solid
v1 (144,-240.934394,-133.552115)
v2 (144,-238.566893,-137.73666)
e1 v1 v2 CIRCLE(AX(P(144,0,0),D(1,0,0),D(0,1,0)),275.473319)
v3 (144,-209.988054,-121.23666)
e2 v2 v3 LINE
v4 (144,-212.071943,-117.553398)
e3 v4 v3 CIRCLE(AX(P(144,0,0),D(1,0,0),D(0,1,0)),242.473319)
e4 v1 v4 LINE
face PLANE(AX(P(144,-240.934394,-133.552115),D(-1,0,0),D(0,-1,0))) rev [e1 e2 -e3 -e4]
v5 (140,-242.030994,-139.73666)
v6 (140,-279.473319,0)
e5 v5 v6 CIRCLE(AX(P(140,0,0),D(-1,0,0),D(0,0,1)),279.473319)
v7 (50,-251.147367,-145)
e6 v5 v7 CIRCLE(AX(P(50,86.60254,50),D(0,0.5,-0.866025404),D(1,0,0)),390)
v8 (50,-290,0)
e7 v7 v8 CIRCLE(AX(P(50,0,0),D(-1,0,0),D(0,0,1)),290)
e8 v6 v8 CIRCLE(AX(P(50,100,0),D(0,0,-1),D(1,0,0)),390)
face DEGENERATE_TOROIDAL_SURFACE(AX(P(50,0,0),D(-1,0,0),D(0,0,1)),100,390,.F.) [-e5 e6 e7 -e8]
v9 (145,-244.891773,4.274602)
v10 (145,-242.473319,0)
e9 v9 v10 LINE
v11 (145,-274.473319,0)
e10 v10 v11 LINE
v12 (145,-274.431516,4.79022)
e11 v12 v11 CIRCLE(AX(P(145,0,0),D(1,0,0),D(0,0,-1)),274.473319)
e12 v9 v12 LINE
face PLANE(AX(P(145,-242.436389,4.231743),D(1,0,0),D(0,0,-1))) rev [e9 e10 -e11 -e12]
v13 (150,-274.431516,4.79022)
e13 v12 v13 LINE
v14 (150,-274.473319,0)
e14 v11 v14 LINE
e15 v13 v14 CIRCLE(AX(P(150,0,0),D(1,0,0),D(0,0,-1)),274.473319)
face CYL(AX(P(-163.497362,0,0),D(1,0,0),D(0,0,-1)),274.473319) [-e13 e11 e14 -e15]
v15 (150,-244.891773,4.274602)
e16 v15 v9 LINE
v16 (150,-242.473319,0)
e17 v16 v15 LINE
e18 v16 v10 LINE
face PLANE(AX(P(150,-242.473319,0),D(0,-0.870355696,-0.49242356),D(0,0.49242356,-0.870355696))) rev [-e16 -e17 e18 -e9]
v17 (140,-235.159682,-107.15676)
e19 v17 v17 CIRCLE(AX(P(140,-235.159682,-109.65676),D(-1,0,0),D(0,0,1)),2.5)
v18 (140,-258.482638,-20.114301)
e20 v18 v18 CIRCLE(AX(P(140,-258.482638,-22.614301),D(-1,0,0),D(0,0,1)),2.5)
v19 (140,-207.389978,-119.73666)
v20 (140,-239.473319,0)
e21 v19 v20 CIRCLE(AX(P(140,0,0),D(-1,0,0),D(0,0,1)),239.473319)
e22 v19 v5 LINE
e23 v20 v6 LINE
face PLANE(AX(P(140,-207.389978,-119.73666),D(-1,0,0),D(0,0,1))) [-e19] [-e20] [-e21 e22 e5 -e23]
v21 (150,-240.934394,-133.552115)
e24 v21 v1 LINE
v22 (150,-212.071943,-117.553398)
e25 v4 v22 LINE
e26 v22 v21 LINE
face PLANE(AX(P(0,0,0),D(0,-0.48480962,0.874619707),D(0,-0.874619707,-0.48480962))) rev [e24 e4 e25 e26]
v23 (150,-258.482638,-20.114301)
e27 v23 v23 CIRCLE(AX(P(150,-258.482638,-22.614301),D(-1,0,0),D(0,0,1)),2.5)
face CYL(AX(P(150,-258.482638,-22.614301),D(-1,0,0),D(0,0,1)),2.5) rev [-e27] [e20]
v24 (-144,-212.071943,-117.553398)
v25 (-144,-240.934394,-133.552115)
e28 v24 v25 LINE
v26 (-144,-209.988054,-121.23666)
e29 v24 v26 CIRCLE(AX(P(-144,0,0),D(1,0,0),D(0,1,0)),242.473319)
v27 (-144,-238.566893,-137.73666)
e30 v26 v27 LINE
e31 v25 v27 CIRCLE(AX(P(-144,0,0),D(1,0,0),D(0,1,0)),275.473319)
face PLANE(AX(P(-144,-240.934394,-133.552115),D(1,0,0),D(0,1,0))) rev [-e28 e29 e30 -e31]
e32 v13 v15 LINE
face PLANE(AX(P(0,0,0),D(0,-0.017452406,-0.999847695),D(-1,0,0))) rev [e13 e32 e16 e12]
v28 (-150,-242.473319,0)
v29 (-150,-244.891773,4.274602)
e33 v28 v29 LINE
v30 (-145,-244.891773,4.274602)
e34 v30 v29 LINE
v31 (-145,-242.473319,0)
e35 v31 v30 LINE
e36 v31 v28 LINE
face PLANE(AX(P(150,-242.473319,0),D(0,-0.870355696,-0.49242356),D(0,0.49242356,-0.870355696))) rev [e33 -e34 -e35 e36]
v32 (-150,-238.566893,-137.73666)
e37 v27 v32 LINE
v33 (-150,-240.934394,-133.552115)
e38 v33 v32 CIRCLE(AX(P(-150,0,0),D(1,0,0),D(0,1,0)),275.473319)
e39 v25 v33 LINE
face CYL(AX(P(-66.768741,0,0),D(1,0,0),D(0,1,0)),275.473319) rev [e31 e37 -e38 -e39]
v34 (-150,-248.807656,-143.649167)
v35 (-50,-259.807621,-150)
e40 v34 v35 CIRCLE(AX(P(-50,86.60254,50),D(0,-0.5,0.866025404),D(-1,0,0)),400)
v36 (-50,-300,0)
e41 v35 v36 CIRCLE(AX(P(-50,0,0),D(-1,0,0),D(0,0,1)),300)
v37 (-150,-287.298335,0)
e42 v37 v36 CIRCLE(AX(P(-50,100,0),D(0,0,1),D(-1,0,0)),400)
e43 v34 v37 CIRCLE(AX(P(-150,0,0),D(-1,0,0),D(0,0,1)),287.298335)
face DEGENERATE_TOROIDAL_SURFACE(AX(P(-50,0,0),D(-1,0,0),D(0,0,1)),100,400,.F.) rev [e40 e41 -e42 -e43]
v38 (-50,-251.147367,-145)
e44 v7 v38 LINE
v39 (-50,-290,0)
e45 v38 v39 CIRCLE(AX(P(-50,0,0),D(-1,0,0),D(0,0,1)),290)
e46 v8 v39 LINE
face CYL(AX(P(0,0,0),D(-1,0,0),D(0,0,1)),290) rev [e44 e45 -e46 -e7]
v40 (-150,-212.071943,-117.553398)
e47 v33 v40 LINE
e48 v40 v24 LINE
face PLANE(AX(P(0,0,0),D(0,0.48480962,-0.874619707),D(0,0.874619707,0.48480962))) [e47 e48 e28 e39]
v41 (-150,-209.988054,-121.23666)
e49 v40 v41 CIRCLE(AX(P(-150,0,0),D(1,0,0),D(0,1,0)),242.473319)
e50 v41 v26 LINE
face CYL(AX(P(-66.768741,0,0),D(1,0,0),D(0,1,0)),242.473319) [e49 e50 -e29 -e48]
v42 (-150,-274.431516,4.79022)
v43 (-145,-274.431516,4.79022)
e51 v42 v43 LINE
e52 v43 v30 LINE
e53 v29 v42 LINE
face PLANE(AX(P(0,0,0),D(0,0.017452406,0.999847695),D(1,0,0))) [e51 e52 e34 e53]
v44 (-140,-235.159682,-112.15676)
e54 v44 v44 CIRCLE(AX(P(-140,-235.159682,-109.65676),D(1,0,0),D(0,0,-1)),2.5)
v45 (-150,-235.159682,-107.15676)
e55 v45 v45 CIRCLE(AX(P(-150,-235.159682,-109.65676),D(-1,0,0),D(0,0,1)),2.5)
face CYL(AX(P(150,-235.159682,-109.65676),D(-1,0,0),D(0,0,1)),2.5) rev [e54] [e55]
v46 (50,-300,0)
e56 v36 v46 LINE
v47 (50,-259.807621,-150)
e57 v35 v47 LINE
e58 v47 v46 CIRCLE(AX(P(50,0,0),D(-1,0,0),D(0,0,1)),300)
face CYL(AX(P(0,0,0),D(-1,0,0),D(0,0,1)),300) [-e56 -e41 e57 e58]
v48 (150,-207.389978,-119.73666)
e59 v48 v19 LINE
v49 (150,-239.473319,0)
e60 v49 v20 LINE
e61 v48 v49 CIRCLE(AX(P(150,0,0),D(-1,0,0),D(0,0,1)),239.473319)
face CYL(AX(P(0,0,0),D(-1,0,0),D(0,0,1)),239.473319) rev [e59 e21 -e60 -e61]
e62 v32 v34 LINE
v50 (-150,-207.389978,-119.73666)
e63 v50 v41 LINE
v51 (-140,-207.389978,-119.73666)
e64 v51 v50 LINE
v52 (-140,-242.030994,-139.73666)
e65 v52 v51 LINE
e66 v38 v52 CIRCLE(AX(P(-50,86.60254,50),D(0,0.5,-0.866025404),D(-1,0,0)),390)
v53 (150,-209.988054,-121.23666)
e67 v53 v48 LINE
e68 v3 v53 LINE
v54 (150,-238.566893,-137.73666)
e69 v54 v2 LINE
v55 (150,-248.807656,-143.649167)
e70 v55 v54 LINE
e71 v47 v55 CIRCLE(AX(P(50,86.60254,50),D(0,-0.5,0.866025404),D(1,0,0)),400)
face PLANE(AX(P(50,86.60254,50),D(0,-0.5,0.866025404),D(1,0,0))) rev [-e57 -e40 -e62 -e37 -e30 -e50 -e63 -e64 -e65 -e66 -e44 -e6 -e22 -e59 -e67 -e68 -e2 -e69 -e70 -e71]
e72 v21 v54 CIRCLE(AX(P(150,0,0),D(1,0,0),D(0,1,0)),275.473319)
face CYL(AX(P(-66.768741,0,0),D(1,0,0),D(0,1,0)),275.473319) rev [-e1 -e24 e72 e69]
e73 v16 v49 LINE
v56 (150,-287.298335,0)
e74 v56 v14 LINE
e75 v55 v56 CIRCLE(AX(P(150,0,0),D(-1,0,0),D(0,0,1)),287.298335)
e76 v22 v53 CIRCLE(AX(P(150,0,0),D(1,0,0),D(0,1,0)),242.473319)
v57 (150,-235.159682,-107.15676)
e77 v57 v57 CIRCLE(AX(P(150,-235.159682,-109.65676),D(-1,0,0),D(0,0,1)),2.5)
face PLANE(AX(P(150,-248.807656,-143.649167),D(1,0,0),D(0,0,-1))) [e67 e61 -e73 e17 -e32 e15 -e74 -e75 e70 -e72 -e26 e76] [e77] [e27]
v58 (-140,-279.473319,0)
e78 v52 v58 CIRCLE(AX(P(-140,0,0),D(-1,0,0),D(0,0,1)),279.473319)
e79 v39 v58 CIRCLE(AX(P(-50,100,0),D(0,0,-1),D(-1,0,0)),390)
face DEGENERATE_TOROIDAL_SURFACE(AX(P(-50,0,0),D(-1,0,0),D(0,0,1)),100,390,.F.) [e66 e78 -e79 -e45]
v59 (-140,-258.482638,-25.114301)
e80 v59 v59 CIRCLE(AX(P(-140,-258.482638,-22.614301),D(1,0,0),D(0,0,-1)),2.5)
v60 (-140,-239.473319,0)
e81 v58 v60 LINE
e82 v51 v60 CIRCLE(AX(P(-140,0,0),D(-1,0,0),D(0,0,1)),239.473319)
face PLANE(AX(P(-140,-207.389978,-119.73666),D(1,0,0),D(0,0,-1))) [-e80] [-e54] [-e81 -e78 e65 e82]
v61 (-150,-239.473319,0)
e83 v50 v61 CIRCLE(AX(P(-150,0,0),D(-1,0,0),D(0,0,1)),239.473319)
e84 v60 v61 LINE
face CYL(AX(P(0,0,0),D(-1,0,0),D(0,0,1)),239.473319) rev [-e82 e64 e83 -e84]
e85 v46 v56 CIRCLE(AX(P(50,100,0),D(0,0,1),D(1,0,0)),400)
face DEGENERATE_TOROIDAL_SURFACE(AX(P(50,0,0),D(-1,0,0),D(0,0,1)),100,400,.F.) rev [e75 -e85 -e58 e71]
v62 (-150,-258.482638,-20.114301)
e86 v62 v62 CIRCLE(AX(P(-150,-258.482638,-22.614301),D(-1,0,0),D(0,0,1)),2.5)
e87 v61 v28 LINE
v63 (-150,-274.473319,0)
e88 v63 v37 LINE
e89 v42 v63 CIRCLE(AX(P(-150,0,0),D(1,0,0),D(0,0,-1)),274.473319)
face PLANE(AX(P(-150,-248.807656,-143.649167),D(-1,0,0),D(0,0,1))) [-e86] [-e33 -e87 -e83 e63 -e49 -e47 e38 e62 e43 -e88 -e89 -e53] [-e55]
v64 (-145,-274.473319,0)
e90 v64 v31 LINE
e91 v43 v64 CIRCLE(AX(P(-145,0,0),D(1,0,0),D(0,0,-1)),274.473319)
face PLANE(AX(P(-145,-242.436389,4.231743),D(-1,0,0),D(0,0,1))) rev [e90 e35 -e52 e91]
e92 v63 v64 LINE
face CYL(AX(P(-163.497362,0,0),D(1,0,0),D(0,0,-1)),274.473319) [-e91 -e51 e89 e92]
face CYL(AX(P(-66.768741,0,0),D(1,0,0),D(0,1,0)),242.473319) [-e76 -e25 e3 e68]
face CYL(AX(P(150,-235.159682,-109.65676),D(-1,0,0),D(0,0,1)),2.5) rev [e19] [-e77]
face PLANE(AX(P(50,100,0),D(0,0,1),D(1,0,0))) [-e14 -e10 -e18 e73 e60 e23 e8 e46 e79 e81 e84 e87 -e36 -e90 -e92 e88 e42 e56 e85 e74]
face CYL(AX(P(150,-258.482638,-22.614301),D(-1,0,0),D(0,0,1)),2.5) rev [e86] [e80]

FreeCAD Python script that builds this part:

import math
import FreeCAD as App
import Part
import Sketcher
from FreeCAD import Vector
Q = App.Units.Quantity


def add_polygon(sketch, points):
    """Adds a closed chain of lines whose ends are joined by coincident constraints."""
    first, n = sketch.GeometryCount, len(points)
    for a, b in zip(points, points[1:] + points[:1]):
        sketch.addGeometry(Part.LineSegment(App.Vector(*a, 0), App.Vector(*b, 0)), False)
    for i in range(n):
        sketch.addConstraint(Sketcher.Constraint("Coincident", first + i, 2, first + (i + 1) % n, 1))

doc = App.newDocument("Part")
body = doc.addObject("PartDesign::Body", "Body")

# Sketch on XY plane
sketch1 = doc.addObject("Sketcher::SketchObject", "Sketch")
body.addObject(sketch1)
sketch1.AttachmentSupport = (doc.XY_Plane, [""])
sketch1.MapMode = "FlatFace"
sketch1.addGeometry([
    Part.LineSegment(Vector(-50, -300, 0), Vector(50, -300, 0)),  # 0
    Part.ArcOfCircle(Part.Circle(Vector(50, 100, 0), Vector(0, 0, 1), 400), math.radians(-90), math.radians(-75.52)),  # 1
    Part.LineSegment(Vector(150, -287, 0), Vector(150, -239, 0)),  # 2
    Part.LineSegment(Vector(150, -239, 0), Vector(140, -239, 0)),  # 3
    Part.LineSegment(Vector(140, -239, 0), Vector(140, -279, 0)),  # 4
    Part.ArcOfCircle(Part.Circle(Vector(50, 100, 0), Vector(0, 0, 1), 390), math.radians(-90), math.radians(-76.66)),  # 5
    Part.LineSegment(Vector(50, -290, 0), Vector(-50, -290, 0)),  # 6
    Part.ArcOfCircle(Part.Circle(Vector(-50, 100, 0), Vector(0, 0, 1), 390), math.radians(-103.34), math.radians(-90)),  # 7
    Part.LineSegment(Vector(-140, -279, 0), Vector(-140, -239, 0)),  # 8
    Part.LineSegment(Vector(-140, -239, 0), Vector(-150, -239, 0)),  # 9
    Part.LineSegment(Vector(-150, -239, 0), Vector(-150, -287, 0)),  # 10
    Part.ArcOfCircle(Part.Circle(Vector(-50, 100, 0), Vector(0, 0, 1), 400), math.radians(-104.48), math.radians(-90)),  # 11
], False)
sketch1.addConstraint([
    Sketcher.Constraint("Tangent", 0, 2, 1, 1),
    Sketcher.Constraint("Coincident", 1, 2, 2, 1),
    Sketcher.Constraint("Coincident", 2, 2, 3, 1),
    Sketcher.Constraint("Coincident", 3, 2, 4, 1),
    Sketcher.Constraint("Coincident", 4, 2, 5, 2),
    Sketcher.Constraint("Tangent", 5, 1, 6, 1),
    Sketcher.Constraint("Tangent", 6, 2, 7, 2),
    Sketcher.Constraint("Coincident", 7, 1, 8, 1),
    Sketcher.Constraint("Coincident", 8, 2, 9, 1),
    Sketcher.Constraint("Coincident", 9, 2, 10, 1),
    Sketcher.Constraint("Coincident", 10, 2, 11, 1),
    Sketcher.Constraint("Tangent", 11, 2, 0, 1),
    Sketcher.Constraint("Horizontal", 0),
    Sketcher.Constraint("Vertical", 2),
    Sketcher.Constraint("Horizontal", 3),
    Sketcher.Constraint("Vertical", 4),
    Sketcher.Constraint("Horizontal", 6),
    Sketcher.Constraint("Vertical", 8),
    Sketcher.Constraint("Horizontal", 9),
    Sketcher.Constraint("Vertical", 10),
    Sketcher.Constraint("Coincident", 5, 3, 1, 3),
    Sketcher.Constraint("Coincident", 11, 3, 7, 3),
    Sketcher.Constraint("Equal", 5, 7),
    Sketcher.Constraint("Symmetric", 3, 2, 8, 2, -2),
    Sketcher.Constraint("Horizontal", 1, 2, 10, 2),
    Sketcher.Constraint("Equal", 3, 9),
    Sketcher.Constraint("Radius", 1, Q("400 mm")),
    Sketcher.Constraint("Radius", 5, Q("390 mm")),
    Sketcher.Constraint("DistanceX", 0, 1, 0, 2, Q("100 mm")),
    Sketcher.Constraint("DistanceX", 3, 2, 3, 1, Q("10 mm")),
    Sketcher.Constraint("DistanceY", 4, 2, 4, 1, Q("40 mm")),
    Sketcher.Constraint("DistanceY", -1, 1, 1, 3, Q("100 mm")),
    Sketcher.Constraint("DistanceX", -1, 1, 2, 2, Q("150 mm")),
])
revolution = doc.addObject("PartDesign::Revolution", "Revolution")
body.addObject(revolution)
revolution.Profile = sketch1
revolution.ReferenceAxis = (sketch1, ["H_Axis"])
revolution.Angle = 30

# Sketch on XY plane
sketch2 = doc.addObject("Sketcher::SketchObject", "Sketch001")
body.addObject(sketch2)
sketch2.AttachmentSupport = (doc.XY_Plane, [""])
sketch2.MapMode = "FlatFace"
add_polygon(sketch2, [(-150, -242), (-150, -274), (-145, -274), (-145, -242)])  # lines 0-3
add_polygon(sketch2, [(145, -242), (145, -274), (150, -274), (150, -242)])  # lines 4-7
sketch2.addConstraint([
    Sketcher.Constraint("Vertical", 0),
    Sketcher.Constraint("Horizontal", 1),
    Sketcher.Constraint("Vertical", 2),
    Sketcher.Constraint("Horizontal", 3),
    Sketcher.Constraint("Vertical", 4),
    Sketcher.Constraint("Horizontal", 5),
    Sketcher.Constraint("Vertical", 6),
    Sketcher.Constraint("Horizontal", 7),
    Sketcher.Constraint("Symmetric", 1, 2, 4, 2, -2),
    Sketcher.Constraint("Symmetric", 3, 2, 6, 2, -2),
    Sketcher.Constraint("DistanceX", 1, 1, 1, 2, Q("5 mm")),
    Sketcher.Constraint("DistanceY", 0, 2, 0, 1, Q("32 mm")),
    Sketcher.Constraint("DistanceX", 0, 2, -1, 1, Q("150 mm")),
    Sketcher.Constraint("DistanceY", 0, 2, -1, 1, Q("274.473319 mm")),
])
revolution2 = doc.addObject("PartDesign::Revolution", "Revolution001")
body.addObject(revolution2)
revolution2.Profile = sketch2
revolution2.ReferenceAxis = (sketch2, ["H_Axis"])
revolution2.Angle = 1
revolution2.Reversed = True

# Sketch on an angled plane
sketch3 = doc.addObject("Sketcher::SketchObject", "Sketch002")
body.addObject(sketch3)
sketch3.Placement = App.Placement(Vector(0, 0, 0), App.Rotation(Vector(1, 0, 0), Vector(0, -0.866025404, -0.5), Vector(0, 0.5, -0.866025404), "ZXY"))
add_polygon(sketch3, [(-150, 275), (-150, 242), (-144, 242), (-144, 275)])  # lines 0-3
add_polygon(sketch3, [(144, 275), (144, 242), (150, 242), (150, 275)])  # lines 4-7
sketch3.addConstraint([
    Sketcher.Constraint("Vertical", 0),
    Sketcher.Constraint("Horizontal", 1),
    Sketcher.Constraint("Vertical", 2),
    Sketcher.Constraint("Horizontal", 3),
    Sketcher.Constraint("Vertical", 4),
    Sketcher.Constraint("Horizontal", 5),
    Sketcher.Constraint("Vertical", 6),
    Sketcher.Constraint("Horizontal", 7),
    Sketcher.Constraint("Symmetric", 1, 2, 4, 2, -2),
    Sketcher.Constraint("Symmetric", 3, 2, 6, 2, -2),
    Sketcher.Constraint("DistanceX", 1, 1, 1, 2, Q("6 mm")),
    Sketcher.Constraint("DistanceY", 0, 2, 0, 1, Q("33 mm")),
    Sketcher.Constraint("DistanceX", 0, 2, -1, 1, Q("150 mm")),
    Sketcher.Constraint("DistanceY", -1, 1, 0, 2, Q("242.473319 mm")),
])
groove = doc.addObject("PartDesign::Groove", "Groove")
body.addObject(groove)
groove.Profile = sketch3
groove.ReferenceAxis = (sketch3, ["H_Axis"])
groove.Angle = 1
groove.Reversed = True

# Sketch on YZ plane
sketch4 = doc.addObject("Sketcher::SketchObject", "Sketch003")
body.addObject(sketch4)
sketch4.AttachmentSupport = (doc.YZ_Plane, [""])
sketch4.MapMode = "FlatFace"
sketch4.AttachmentOffset = App.Placement(Vector(0, 0, -150), App.Rotation())
add_polygon(sketch4, [(-242.5, 0), (-244.9, 4.3), (-242.4, 4.2)])  # lines 0-2
sketch4.addConstraint([
    Sketcher.Constraint("PointOnObject", 2, 2, -1),
    Sketcher.Constraint("Angle", 1, Q("-1 deg")),
    Sketcher.Constraint("Angle", 0, Q("119.5 deg")),
    Sketcher.Constraint("Angle", 2, Q("-90.5 deg")),
    Sketcher.Constraint("DistanceY", -1, 1, 0, 2, Q("4.274602 mm")),
    Sketcher.Constraint("DistanceX", 1, 2, -1, 1, Q("242.436389 mm")),
])
pocket1 = doc.addObject("PartDesign::Pocket", "Pocket")
body.addObject(pocket1)
pocket1.Profile = sketch4
pocket1.Length = 300
pocket1.Reversed = True

# Sketch on YZ plane
sketch5 = doc.addObject("Sketcher::SketchObject", "Sketch004")
body.addObject(sketch5)
sketch5.AttachmentSupport = (doc.YZ_Plane, [""])
sketch5.MapMode = "FlatFace"
sketch5.AttachmentOffset = App.Placement(Vector(0, 0, -150), App.Rotation())
sketch5.addGeometry([
    Part.Circle(Vector(-258.5, -22.6, 0), Vector(0, 0, 1), 2.5),
    Part.Circle(Vector(-235.2, -109.7, 0), Vector(0, 0, 1), 2.5),
], False)
sketch5.addConstraint([
    Sketcher.Constraint("Equal", 0, 1),
    Sketcher.Constraint("Diameter", 0, Q("5 mm")),
    Sketcher.Constraint("DistanceY", 0, 3, -1, 1, Q("22.614301 mm")),
    Sketcher.Constraint("DistanceX", 0, 3, -1, 1, Q("258.482638 mm")),
    Sketcher.Constraint("DistanceX", 1, 3, -1, 1, Q("235.159682 mm")),
    Sketcher.Constraint("DistanceY", 1, 3, -1, 1, Q("109.65676 mm")),
])
pocket2 = doc.addObject("PartDesign::Pocket", "Pocket001")
body.addObject(pocket2)
pocket2.Profile = sketch5
pocket2.Length = 300
pocket2.Reversed = True

doc.recompute()
